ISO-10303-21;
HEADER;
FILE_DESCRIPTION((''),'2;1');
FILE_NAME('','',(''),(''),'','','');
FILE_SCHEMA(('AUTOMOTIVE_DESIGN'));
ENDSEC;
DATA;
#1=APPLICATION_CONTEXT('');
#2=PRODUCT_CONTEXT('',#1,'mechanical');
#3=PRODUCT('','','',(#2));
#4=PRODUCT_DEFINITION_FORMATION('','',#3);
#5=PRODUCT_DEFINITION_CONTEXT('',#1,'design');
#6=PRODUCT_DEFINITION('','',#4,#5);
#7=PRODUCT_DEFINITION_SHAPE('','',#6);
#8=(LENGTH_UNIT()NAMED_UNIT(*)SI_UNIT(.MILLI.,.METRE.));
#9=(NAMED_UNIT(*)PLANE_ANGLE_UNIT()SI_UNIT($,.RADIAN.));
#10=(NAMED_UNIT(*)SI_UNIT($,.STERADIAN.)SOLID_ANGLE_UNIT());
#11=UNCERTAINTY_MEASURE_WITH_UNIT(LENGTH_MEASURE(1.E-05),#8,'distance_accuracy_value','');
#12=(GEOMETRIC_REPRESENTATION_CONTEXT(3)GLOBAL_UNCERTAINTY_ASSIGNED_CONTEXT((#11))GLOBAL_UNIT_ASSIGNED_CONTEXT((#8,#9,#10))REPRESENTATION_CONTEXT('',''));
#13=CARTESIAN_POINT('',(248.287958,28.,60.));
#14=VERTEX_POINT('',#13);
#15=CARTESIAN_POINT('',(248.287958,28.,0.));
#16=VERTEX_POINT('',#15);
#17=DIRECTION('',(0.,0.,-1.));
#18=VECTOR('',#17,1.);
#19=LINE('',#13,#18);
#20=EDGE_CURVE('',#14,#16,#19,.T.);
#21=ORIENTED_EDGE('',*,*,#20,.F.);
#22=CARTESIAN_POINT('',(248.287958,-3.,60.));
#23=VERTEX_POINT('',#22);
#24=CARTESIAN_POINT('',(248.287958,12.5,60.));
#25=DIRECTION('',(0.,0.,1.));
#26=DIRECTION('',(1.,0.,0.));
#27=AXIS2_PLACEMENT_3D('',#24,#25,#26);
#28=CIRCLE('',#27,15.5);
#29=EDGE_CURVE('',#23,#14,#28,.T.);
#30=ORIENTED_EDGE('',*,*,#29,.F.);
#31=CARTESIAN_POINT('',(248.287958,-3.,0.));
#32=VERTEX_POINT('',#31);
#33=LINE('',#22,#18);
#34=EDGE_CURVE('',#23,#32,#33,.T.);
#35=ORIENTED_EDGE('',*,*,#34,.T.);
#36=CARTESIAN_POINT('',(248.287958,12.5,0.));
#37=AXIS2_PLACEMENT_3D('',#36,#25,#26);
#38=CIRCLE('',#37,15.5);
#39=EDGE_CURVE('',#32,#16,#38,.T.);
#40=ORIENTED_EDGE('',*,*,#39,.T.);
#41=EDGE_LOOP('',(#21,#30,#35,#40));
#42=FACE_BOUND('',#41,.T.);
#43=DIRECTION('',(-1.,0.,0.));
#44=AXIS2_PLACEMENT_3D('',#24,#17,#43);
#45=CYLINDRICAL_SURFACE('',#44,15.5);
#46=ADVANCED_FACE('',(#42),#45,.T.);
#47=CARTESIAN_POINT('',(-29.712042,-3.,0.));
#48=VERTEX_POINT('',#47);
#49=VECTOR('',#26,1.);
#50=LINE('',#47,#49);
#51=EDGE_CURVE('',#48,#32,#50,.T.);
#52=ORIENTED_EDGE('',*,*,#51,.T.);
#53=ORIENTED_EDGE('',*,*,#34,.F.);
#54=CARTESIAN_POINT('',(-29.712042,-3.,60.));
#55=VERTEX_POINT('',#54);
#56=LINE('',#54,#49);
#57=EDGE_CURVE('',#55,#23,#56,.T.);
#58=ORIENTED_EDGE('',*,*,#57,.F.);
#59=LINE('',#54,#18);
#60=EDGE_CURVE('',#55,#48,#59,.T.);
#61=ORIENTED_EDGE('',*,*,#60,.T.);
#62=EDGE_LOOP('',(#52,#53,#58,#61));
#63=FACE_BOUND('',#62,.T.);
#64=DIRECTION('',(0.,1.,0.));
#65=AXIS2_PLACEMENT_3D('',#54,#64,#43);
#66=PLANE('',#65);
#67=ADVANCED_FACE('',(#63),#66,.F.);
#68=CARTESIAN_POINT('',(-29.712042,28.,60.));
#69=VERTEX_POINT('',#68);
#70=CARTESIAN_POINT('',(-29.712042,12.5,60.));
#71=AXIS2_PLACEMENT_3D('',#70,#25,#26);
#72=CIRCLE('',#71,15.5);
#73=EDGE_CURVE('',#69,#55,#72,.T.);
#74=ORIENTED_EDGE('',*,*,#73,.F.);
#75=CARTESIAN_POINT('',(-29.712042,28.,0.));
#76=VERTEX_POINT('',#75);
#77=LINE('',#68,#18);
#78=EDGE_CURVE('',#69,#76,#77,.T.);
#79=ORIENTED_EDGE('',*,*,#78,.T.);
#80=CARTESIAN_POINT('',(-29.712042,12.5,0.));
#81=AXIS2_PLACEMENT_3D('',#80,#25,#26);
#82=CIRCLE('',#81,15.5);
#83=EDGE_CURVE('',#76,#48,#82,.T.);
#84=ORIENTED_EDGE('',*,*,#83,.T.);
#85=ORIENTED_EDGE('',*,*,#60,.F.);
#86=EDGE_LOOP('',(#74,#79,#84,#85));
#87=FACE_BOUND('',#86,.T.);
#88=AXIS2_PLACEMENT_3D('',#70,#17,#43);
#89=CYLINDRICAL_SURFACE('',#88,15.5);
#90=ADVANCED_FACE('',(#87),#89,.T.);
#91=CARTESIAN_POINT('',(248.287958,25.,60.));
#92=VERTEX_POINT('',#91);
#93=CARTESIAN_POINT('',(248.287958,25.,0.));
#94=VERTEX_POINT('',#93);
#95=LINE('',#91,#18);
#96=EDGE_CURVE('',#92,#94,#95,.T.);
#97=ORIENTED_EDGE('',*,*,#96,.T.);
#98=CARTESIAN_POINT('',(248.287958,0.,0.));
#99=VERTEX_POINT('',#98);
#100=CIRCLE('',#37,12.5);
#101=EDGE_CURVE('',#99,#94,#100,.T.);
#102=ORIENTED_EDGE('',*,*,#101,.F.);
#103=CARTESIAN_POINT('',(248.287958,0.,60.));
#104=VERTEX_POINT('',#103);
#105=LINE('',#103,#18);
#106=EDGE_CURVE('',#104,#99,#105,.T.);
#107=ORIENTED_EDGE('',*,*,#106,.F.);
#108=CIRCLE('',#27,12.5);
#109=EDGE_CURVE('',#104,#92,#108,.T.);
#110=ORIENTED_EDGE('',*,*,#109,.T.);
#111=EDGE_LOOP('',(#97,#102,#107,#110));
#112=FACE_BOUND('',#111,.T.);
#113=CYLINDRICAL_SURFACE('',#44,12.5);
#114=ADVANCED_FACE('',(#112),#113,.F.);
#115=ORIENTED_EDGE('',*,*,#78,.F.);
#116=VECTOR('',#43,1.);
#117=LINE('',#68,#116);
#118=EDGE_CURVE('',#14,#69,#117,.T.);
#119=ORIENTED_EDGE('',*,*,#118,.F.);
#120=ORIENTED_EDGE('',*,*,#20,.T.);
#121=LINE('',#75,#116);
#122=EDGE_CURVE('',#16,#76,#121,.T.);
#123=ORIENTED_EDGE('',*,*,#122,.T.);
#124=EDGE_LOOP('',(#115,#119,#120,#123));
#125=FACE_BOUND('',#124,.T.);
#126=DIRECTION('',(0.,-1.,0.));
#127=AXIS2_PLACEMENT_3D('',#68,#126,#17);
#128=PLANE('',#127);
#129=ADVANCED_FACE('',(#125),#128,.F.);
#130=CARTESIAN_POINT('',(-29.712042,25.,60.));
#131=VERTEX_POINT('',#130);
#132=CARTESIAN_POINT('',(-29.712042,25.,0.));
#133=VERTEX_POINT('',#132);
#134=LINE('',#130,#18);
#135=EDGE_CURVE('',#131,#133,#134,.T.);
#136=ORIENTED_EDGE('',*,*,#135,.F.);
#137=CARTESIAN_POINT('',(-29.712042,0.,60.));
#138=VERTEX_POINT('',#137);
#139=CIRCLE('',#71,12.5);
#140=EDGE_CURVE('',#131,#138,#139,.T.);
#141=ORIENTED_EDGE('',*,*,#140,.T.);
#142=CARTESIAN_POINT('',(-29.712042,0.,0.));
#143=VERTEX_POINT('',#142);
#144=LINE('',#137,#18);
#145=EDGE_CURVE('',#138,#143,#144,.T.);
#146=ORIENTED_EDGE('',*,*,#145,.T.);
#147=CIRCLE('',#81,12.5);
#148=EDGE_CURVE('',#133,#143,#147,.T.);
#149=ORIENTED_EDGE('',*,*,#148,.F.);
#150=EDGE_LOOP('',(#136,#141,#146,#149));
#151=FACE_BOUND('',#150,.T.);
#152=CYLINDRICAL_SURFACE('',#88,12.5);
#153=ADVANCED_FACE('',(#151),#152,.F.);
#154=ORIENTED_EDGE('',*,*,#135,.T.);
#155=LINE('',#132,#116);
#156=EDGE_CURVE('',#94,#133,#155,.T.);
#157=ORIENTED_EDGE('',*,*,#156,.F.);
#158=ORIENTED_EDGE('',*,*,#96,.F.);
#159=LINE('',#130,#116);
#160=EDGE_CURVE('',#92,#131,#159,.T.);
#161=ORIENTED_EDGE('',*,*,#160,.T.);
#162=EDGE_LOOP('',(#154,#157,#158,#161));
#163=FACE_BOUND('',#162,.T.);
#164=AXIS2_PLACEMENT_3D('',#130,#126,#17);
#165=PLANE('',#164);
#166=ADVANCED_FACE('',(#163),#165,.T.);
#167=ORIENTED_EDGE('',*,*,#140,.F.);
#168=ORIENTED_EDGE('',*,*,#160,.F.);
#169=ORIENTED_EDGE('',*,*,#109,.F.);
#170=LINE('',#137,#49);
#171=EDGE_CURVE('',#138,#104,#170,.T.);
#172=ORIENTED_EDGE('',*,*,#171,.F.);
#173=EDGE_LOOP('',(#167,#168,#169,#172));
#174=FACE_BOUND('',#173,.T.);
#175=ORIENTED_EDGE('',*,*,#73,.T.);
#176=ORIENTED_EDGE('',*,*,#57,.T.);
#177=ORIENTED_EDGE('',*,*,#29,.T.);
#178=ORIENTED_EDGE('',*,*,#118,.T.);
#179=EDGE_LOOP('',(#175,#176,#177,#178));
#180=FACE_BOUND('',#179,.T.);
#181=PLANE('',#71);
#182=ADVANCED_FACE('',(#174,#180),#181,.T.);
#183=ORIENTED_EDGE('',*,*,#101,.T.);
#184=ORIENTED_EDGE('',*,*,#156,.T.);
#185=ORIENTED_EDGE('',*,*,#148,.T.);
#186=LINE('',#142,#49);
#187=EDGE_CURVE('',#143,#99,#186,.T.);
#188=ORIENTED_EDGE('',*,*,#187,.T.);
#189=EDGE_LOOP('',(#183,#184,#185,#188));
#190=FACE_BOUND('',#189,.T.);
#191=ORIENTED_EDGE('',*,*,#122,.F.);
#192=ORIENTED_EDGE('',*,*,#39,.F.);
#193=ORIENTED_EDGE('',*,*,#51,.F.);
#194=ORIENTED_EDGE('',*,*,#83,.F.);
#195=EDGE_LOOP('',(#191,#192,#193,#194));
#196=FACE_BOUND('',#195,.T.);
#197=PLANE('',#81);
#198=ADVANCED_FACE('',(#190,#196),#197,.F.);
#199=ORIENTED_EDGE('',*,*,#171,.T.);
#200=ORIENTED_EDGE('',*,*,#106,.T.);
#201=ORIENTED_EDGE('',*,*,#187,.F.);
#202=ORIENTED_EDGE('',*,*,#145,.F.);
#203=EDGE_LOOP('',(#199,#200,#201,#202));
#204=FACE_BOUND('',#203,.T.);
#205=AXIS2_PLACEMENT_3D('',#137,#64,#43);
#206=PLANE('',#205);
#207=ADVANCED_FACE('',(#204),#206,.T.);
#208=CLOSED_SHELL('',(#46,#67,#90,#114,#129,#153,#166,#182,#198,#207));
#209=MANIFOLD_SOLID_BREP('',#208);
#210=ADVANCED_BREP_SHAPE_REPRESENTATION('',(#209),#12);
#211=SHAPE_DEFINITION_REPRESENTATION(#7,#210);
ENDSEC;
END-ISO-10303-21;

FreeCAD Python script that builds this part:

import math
import FreeCAD as App
import Part
import Sketcher
from FreeCAD import Vector

doc = App.newDocument("Part")
params = doc.addObject("Spreadsheet::Sheet", "Params")
for row, (alias, value) in enumerate([
    ("sketch1_radius", "15.5 mm"),
    ("sketch1_radius2", "12.5 mm"),
    ("sketch1_width", "278 mm"),
    ("pad1_length", "60 mm"),
], start=1):
    params.set(f"A{row}", alias)
    params.set(f"B{row}", "=" + value)
    params.setAlias(f"B{row}", alias)

body = doc.addObject("PartDesign::Body", "Body")

sketch1 = body.newObject("Sketcher::SketchObject", "Sketch")
sketch1.AttachmentSupport = (doc.getObject("XY_Plane"), [""])
sketch1.MapMode = "FlatFace"
sketch1.addGeometry([
    Part.LineSegment(Vector(248, 28, 0), Vector(-30, 28, 0)),
    Part.ArcOfCircle(Part.Circle(Vector(-30, 12, 0), Vector(0, 0, 1), 16), math.radians(90), math.radians(270)),
    Part.LineSegment(Vector(-30, -3, 0), Vector(248, -3, 0)),
    Part.ArcOfCircle(Part.Circle(Vector(248, 12, 0), Vector(0, 0, 1), 16), math.radians(-90), math.radians(90)),
    Part.LineSegment(Vector(-30, 25, 0), Vector(248, 25, 0)),
    Part.ArcOfCircle(Part.Circle(Vector(248, 12, 0), Vector(0, 0, 1), 12), math.radians(-90), math.radians(90)),
    Part.LineSegment(Vector(248, 0, 0), Vector(-30, 0, 0)),
    Part.ArcOfCircle(Part.Circle(Vector(-30, 12, 0), Vector(0, 0, 1), 12), math.radians(90), math.radians(270)),
], False)
sketch1.addConstraint([
    Sketcher.Constraint("Tangent", 0, 2, 1, 1),
    Sketcher.Constraint("Tangent", 1, 2, 2, 1),
    Sketcher.Constraint("Tangent", 2, 2, 3, 1),
    Sketcher.Constraint("Tangent", 3, 2, 0, 1),
    Sketcher.Constraint("Tangent", 4, 2, 5, 2),
    Sketcher.Constraint("Tangent", 5, 1, 6, 1),
    Sketcher.Constraint("Tangent", 6, 2, 7, 2),
    Sketcher.Constraint("Tangent", 7, 1, 4, 1),
    Sketcher.Constraint("Horizontal", 0),
    Sketcher.Constraint("Horizontal", 2),
    Sketcher.Constraint("Horizontal", 4),
    Sketcher.Constraint("Horizontal", 6),
    Sketcher.Constraint("Coincident", 5, 3, 3, 3),
    Sketcher.Constraint("PointOnObject", 5, 1, -1),
    Sketcher.Constraint("Vertical", 7, 3, 0, 2),
    Sketcher.Constraint("Radius", 1, 15.5),
    Sketcher.Constraint("Radius", 5, 12.5),
    Sketcher.Constraint("DistanceX", 0, 2, 0, 1, 278.0),
    Sketcher.Constraint("DistanceX", 1, 3, -1, 1, 29.712042),
])
sketch1.setExpression("Constraints[15]", "Params.sketch1_radius")
sketch1.setExpression("Constraints[16]", "Params.sketch1_radius2")
sketch1.setExpression("Constraints[17]", "Params.sketch1_width")
pad1 = body.newObject("PartDesign::Pad", "Pad")
pad1.Profile = sketch1
pad1.setExpression("Length", "Params.pad1_length")

doc.recompute()
